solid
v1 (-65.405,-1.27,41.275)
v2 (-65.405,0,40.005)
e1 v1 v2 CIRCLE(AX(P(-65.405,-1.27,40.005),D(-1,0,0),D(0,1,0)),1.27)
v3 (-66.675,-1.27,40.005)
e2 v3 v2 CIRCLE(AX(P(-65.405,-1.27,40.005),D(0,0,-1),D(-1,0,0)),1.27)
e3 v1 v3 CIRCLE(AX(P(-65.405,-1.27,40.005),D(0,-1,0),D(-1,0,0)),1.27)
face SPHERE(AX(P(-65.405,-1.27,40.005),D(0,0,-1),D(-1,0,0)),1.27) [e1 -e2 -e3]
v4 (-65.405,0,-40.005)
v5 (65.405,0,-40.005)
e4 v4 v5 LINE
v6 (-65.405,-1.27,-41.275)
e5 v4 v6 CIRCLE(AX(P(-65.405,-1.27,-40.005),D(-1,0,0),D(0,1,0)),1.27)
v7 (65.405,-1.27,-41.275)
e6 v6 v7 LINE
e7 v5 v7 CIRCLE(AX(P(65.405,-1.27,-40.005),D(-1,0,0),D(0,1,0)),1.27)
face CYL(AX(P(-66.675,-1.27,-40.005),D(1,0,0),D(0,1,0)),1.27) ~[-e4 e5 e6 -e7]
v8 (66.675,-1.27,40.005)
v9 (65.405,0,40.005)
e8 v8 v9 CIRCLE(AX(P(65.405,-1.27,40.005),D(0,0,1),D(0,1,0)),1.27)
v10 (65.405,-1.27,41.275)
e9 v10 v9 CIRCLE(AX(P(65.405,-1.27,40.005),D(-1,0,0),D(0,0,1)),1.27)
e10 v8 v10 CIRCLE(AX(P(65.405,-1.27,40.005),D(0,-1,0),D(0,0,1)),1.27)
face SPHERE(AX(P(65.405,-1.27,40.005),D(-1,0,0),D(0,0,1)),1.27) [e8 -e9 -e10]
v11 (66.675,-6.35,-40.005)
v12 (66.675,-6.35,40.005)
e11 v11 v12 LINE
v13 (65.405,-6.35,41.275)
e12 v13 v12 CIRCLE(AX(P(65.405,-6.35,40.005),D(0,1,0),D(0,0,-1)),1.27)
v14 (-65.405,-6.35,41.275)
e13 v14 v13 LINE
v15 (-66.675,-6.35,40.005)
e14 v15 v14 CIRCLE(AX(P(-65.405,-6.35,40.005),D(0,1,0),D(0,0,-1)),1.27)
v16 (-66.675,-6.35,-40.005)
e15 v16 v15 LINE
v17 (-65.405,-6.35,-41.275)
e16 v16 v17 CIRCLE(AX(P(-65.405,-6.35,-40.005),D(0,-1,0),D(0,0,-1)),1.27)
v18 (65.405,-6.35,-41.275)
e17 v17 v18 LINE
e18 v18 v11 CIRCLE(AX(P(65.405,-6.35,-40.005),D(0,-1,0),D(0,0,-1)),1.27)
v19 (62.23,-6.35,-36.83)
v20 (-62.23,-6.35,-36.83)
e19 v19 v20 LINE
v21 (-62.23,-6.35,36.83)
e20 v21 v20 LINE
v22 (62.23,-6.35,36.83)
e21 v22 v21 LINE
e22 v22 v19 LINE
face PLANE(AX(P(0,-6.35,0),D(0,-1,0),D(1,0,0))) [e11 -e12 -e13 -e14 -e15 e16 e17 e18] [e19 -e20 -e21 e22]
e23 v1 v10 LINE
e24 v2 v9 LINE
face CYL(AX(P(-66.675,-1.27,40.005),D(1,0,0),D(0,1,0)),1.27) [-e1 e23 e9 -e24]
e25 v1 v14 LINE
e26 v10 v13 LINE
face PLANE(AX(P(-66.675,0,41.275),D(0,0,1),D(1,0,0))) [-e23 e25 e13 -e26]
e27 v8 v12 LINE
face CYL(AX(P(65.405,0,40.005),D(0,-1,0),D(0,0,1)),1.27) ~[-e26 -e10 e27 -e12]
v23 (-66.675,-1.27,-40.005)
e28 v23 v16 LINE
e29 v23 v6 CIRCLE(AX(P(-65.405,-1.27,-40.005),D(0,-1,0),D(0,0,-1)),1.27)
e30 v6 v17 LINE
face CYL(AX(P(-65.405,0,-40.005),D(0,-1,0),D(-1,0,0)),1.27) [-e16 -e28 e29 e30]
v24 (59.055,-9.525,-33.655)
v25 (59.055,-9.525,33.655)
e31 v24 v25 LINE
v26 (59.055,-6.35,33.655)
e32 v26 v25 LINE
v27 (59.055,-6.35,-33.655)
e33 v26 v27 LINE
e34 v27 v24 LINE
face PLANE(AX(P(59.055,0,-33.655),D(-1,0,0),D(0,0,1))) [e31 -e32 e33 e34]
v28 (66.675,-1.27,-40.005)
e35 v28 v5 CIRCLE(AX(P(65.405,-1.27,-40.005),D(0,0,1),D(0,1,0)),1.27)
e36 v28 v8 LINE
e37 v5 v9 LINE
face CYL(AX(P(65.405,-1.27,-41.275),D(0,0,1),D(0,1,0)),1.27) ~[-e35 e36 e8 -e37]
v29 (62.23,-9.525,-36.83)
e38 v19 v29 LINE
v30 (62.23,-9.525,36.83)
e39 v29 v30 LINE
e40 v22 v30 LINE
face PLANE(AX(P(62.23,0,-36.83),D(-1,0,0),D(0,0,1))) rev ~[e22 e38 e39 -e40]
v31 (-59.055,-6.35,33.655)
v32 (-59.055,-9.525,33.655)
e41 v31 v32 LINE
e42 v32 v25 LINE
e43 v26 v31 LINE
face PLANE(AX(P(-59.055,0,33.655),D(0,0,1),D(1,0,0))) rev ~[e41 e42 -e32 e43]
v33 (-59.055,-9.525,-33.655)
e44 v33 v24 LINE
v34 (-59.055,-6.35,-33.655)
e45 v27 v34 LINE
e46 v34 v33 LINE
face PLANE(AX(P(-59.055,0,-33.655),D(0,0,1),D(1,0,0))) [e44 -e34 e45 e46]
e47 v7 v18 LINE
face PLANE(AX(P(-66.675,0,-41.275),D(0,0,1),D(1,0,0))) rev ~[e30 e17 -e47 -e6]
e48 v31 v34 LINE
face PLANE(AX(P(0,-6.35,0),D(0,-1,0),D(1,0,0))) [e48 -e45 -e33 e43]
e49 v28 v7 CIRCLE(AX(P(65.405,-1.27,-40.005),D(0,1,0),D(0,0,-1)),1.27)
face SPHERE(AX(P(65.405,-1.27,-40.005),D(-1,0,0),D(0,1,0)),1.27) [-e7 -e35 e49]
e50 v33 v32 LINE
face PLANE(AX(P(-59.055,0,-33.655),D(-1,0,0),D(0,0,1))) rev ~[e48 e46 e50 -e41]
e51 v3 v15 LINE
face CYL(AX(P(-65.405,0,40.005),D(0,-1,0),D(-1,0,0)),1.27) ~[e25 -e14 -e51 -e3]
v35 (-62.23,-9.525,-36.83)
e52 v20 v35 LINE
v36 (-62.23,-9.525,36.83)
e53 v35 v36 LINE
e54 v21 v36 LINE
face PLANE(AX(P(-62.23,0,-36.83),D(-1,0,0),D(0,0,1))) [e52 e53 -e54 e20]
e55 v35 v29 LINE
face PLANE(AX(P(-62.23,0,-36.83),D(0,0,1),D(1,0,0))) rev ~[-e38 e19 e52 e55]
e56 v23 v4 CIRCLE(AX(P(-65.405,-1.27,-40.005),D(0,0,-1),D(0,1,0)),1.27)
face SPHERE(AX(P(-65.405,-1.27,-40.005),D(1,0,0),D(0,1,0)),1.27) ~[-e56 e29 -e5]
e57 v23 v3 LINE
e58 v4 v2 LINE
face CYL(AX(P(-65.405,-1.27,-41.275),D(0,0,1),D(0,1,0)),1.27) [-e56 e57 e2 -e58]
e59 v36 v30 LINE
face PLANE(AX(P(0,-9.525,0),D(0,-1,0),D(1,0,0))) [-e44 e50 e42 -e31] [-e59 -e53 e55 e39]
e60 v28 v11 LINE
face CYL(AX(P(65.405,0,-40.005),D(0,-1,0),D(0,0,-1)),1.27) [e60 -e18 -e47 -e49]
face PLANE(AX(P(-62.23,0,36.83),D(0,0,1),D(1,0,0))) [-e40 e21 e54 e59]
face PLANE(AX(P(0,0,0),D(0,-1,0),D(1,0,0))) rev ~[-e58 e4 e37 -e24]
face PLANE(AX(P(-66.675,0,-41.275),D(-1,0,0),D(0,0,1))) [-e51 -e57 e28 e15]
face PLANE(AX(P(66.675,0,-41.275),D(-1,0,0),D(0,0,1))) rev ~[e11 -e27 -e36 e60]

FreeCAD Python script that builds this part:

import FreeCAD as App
import Part
import Sketcher
Q = App.Units.Quantity


def edges_at(feature, points):
    """Names of the edges that pass closest to the given points."""
    edges = feature.Shape.Edges
    near = lambda p: min(range(len(edges)), key=lambda i: edges[i].distToShape(Part.Vertex(*p))[0])
    return sorted({f"Edge{near(p) + 1}" for p in points})


def add_polygon(sketch, points):
    """Adds a closed chain of lines whose ends are joined by coincident constraints."""
    first, n = sketch.GeometryCount, len(points)
    for a, b in zip(points, points[1:] + points[:1]):
        sketch.addGeometry(Part.LineSegment(App.Vector(*a, 0), App.Vector(*b, 0)), False)
    for i in range(n):
        sketch.addConstraint(Sketcher.Constraint("Coincident", first + i, 2, first + (i + 1) % n, 1))

doc = App.newDocument("Part")
body = doc.addObject("PartDesign::Body", "Body")

sketch1 = body.newObject("Sketcher::SketchObject", "Sketch")
sketch1.AttachmentSupport = (doc.getObject("XZ_Plane"), [""])
sketch1.MapMode = "FlatFace"
add_polygon(sketch1, [(-66.675, 41.275), (-66.675, -41.275), (66.675, -41.275), (66.675, 41.275)])
sketch1.addConstraint([
    Sketcher.Constraint("Vertical", 0),
    Sketcher.Constraint("Horizontal", 1),
    Sketcher.Constraint("Vertical", 2),
    Sketcher.Constraint("Horizontal", 3),
    Sketcher.Constraint("Symmetric", 0, 2, 2, 2, -1, 1),
    Sketcher.Constraint("DistanceX", 1, 1, 1, 2, Q("5.25 in")),
    Sketcher.Constraint("DistanceY", 0, 2, 0, 1, Q("3.25 in")),
])
pad1 = body.newObject("PartDesign::Pad", "Pad")
pad1.Profile = sketch1
pad1.Length = Q("0.25 in")

sketch2 = body.newObject("Sketcher::SketchObject", "Sketch001")
sketch2.AttachmentSupport = (doc.getObject("XZ_Plane"), [""])
sketch2.MapMode = "FlatFace"
add_polygon(sketch2, [(-62.23, 36.83), (-62.23, -36.83), (62.23, -36.83), (62.23, 36.83)])
add_polygon(sketch2, [(59.055, -33.655), (-59.055, -33.655), (-59.055, 33.655), (59.055, 33.655)])
sketch2.addConstraint([
    Sketcher.Constraint("Vertical", 0),
    Sketcher.Constraint("Horizontal", 1),
    Sketcher.Constraint("Vertical", 2),
    Sketcher.Constraint("Horizontal", 3),
    Sketcher.Constraint("Horizontal", 4),
    Sketcher.Constraint("Vertical", 5),
    Sketcher.Constraint("Horizontal", 6),
    Sketcher.Constraint("Vertical", 7),
    Sketcher.Constraint("Symmetric", 0, 2, 2, 2, -1, 1),
    Sketcher.Constraint("Symmetric", 4, 2, 6, 2, -1, 1),
    Sketcher.Constraint("DistanceX", 1, 1, 1, 2, Q("4.9 in")),
    Sketcher.Constraint("DistanceY", 0, 2, 0, 1, Q("2.9 in")),
    Sketcher.Constraint("DistanceX", 4, 2, 4, 1, Q("4.65 in")),
    Sketcher.Constraint("DistanceY", 5, 1, 5, 2, Q("2.65 in")),
])
pad2 = body.newObject("PartDesign::Pad", "Pad001")
pad2.Profile = sketch2
pad2.Length = Q("0.375 in")
doc.recompute()

fillet = body.newObject("PartDesign::Fillet", "Fillet")
fillet.Base = (pad2, edges_at(pad2, [
    (0, 0, -41.275),
    (-66.675, 0, 0),
    (-66.675, -3.175, -41.275),
    (-66.675, -3.175, 41.275),
    (0, 0, 41.275),
    (66.675, -3.175, 41.275),
    (66.675, 0, 0),
    (66.675, -3.175, -41.275),
]))
fillet.Radius = Q("0.05 in")

doc.recompute()
